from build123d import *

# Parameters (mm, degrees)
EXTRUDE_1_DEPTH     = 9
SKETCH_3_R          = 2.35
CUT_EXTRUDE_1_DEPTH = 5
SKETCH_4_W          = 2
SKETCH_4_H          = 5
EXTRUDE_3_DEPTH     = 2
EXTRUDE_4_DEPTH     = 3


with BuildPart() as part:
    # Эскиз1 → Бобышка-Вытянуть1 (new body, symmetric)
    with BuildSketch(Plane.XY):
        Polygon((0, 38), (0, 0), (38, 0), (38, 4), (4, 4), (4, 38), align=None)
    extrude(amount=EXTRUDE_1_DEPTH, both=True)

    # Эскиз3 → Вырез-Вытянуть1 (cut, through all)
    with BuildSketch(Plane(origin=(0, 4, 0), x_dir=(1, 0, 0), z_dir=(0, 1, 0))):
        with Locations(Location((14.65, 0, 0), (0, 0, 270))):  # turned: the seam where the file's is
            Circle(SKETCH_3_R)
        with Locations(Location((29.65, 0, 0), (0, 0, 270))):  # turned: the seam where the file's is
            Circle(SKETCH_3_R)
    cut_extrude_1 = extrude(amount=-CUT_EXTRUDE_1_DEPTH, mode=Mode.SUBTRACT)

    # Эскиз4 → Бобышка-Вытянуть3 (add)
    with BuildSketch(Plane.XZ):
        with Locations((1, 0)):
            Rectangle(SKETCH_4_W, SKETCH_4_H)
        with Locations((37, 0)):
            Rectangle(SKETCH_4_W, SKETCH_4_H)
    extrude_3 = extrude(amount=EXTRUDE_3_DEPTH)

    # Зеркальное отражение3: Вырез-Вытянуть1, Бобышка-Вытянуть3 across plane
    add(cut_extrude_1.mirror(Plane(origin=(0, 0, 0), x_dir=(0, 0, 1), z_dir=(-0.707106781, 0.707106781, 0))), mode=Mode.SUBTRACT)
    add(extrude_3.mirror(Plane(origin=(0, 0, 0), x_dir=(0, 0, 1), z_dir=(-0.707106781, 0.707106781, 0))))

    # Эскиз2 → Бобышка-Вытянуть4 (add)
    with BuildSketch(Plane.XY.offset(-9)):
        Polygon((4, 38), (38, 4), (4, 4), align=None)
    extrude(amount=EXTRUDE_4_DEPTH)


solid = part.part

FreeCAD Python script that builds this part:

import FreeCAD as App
import Part
import Sketcher
from FreeCAD import Vector
Q = App.Units.Quantity


def add_polygon(sketch, points):
    """Adds a closed chain of lines whose ends are joined by coincident constraints."""
    first, n = sketch.GeometryCount, len(points)
    for a, b in zip(points, points[1:] + points[:1]):
        sketch.addGeometry(Part.LineSegment(App.Vector(*a, 0), App.Vector(*b, 0)), False)
    for i in range(n):
        sketch.addConstraint(Sketcher.Constraint("Coincident", first + i, 2, first + (i + 1) % n, 1))

doc = App.newDocument("Part")
body = doc.addObject("PartDesign::Body", "Body")

# Sketch on XY plane
sketch1 = body.newObject("Sketcher::SketchObject", "Sketch")
sketch1.AttachmentSupport = (doc.getObject("XY_Plane"), [""])
sketch1.MapMode = "FlatFace"
add_polygon(sketch1, [(0, 38), (0, 0), (38, 0), (38, 4), (4, 4), (4, 38)])  # lines 0-5
sketch1.addConstraint([
    Sketcher.Constraint("Vertical", 0),
    Sketcher.Constraint("Horizontal", 1),
    Sketcher.Constraint("Vertical", 2),
    Sketcher.Constraint("Horizontal", 3),
    Sketcher.Constraint("Vertical", 4),
    Sketcher.Constraint("Horizontal", 5),
    Sketcher.Constraint("Coincident", 0, 2, -1, 1),
    Sketcher.Constraint("Equal", 1, 0),
    Sketcher.Constraint("Equal", 5, 2),
    Sketcher.Constraint("DistanceX", 1, 1, 1, 2, Q("38 mm")),
    Sketcher.Constraint("DistanceX", 3, 2, 3, 1, Q("34 mm")),
])
pad1 = body.newObject("PartDesign::Pad", "Pad")
pad1.Profile = sketch1
pad1.Length = 18
pad1.Midplane = True

# Sketch on XZ plane
sketch2 = body.newObject("Sketcher::SketchObject", "Sketch001")
sketch2.AttachmentSupport = (doc.getObject("XZ_Plane"), [""])
sketch2.MapMode = "FlatFace"
sketch2.AttachmentOffset = App.Placement(Vector(0, 0, -4), App.Rotation())
sketch2.addGeometry([
    Part.Circle(Vector(14.7, 0, 0), Vector(0, 0, 1), 2.4),
    Part.Circle(Vector(29.6, 0, 0), Vector(0, 0, 1), 2.4),
], False)
sketch2.addConstraint([
    Sketcher.Constraint("Equal", 0, 1),
    Sketcher.Constraint("PointOnObject", 0, 3, -1),
    Sketcher.Constraint("PointOnObject", 1, 3, -1),
    Sketcher.Constraint("Diameter", 0, Q("4.7 mm")),
    Sketcher.Constraint("DistanceX", 0, 3, 1, 3, Q("15 mm")),
    Sketcher.Constraint("DistanceX", -1, 1, 0, 3, Q("14.65 mm")),
])
pocket1 = body.newObject("PartDesign::Pocket", "Pocket")
pocket1.Profile = sketch2
pocket1.Type = "ThroughAll"
pocket1.Reversed = True

# Sketch on XZ plane
sketch3 = body.newObject("Sketcher::SketchObject", "Sketch002")
sketch3.AttachmentSupport = (doc.getObject("XZ_Plane"), [""])
sketch3.MapMode = "FlatFace"
add_polygon(sketch3, [(0, 2.5), (0, -2.5), (2, -2.5), (2, 2.5)])  # lines 0-3
add_polygon(sketch3, [(36, 2.5), (36, -2.5), (38, -2.5), (38, 2.5)])  # lines 4-7
sketch3.addConstraint([
    Sketcher.Constraint("Vertical", 0),
    Sketcher.Constraint("Horizontal", 1),
    Sketcher.Constraint("Vertical", 2),
    Sketcher.Constraint("Horizontal", 3),
    Sketcher.Constraint("Vertical", 4),
    Sketcher.Constraint("Horizontal", 5),
    Sketcher.Constraint("Vertical", 6),
    Sketcher.Constraint("Horizontal", 7),
    Sketcher.Constraint("Symmetric", 0, 2, 3, 2, -1, 1),
    Sketcher.Constraint("Horizontal", 1, 2, 4, 2),
    Sketcher.Constraint("Horizontal", 3, 2, 6, 2),
    Sketcher.Constraint("Equal", 3, 5),
    Sketcher.Constraint("DistanceX", 1, 1, 1, 2, Q("2 mm")),
    Sketcher.Constraint("DistanceY", 0, 2, 0, 1, Q("5 mm")),
    Sketcher.Constraint("DistanceX", -1, 1, 4, 2, Q("36 mm")),
])
pad2 = body.newObject("PartDesign::Pad", "Pad001")
pad2.Profile = sketch3
pad2.Length = 2
doc.recompute()

datumplane = body.newObject("PartDesign::Plane", "DatumPlane")
datumplane.Placement = App.Placement(Vector(0, 0, 0), App.Rotation(Vector(0.707106781, 0.707106781, 0), Vector(0, 0, -1), Vector(-0.707106781, 0.707106781, 0), "ZXY"))
mirrored = body.newObject("PartDesign::Mirrored", "Mirrored")
mirrored.Originals = [pocket1, pad2]
mirrored.MirrorPlane = (datumplane, [""])
body.Tip = mirrored

# Sketch on XY plane
sketch4 = body.newObject("Sketcher::SketchObject", "Sketch003")
sketch4.AttachmentSupport = (doc.getObject("XY_Plane"), [""])
sketch4.MapMode = "FlatFace"
sketch4.AttachmentOffset = App.Placement(Vector(0, 0, -9), App.Rotation())
add_polygon(sketch4, [(38, 4), (4, 38), (4, 4)])  # lines 0-2
sketch4.addConstraint([
    Sketcher.Constraint("Vertical", 1),
    Sketcher.Constraint("Horizontal", 2),
    Sketcher.Constraint("Equal", 2, 1),
    Sketcher.Constraint("DistanceX", 2, 1, 2, 2, Q("34 mm")),
    Sketcher.Constraint("DistanceX", -1, 1, 0, 2, Q("4 mm")),
    Sketcher.Constraint("DistanceY", -1, 1, 0, 2, Q("38 mm")),
])
pad3 = body.newObject("PartDesign::Pad", "Pad002")
pad3.Profile = sketch4
pad3.Length = 3

doc.recompute()
